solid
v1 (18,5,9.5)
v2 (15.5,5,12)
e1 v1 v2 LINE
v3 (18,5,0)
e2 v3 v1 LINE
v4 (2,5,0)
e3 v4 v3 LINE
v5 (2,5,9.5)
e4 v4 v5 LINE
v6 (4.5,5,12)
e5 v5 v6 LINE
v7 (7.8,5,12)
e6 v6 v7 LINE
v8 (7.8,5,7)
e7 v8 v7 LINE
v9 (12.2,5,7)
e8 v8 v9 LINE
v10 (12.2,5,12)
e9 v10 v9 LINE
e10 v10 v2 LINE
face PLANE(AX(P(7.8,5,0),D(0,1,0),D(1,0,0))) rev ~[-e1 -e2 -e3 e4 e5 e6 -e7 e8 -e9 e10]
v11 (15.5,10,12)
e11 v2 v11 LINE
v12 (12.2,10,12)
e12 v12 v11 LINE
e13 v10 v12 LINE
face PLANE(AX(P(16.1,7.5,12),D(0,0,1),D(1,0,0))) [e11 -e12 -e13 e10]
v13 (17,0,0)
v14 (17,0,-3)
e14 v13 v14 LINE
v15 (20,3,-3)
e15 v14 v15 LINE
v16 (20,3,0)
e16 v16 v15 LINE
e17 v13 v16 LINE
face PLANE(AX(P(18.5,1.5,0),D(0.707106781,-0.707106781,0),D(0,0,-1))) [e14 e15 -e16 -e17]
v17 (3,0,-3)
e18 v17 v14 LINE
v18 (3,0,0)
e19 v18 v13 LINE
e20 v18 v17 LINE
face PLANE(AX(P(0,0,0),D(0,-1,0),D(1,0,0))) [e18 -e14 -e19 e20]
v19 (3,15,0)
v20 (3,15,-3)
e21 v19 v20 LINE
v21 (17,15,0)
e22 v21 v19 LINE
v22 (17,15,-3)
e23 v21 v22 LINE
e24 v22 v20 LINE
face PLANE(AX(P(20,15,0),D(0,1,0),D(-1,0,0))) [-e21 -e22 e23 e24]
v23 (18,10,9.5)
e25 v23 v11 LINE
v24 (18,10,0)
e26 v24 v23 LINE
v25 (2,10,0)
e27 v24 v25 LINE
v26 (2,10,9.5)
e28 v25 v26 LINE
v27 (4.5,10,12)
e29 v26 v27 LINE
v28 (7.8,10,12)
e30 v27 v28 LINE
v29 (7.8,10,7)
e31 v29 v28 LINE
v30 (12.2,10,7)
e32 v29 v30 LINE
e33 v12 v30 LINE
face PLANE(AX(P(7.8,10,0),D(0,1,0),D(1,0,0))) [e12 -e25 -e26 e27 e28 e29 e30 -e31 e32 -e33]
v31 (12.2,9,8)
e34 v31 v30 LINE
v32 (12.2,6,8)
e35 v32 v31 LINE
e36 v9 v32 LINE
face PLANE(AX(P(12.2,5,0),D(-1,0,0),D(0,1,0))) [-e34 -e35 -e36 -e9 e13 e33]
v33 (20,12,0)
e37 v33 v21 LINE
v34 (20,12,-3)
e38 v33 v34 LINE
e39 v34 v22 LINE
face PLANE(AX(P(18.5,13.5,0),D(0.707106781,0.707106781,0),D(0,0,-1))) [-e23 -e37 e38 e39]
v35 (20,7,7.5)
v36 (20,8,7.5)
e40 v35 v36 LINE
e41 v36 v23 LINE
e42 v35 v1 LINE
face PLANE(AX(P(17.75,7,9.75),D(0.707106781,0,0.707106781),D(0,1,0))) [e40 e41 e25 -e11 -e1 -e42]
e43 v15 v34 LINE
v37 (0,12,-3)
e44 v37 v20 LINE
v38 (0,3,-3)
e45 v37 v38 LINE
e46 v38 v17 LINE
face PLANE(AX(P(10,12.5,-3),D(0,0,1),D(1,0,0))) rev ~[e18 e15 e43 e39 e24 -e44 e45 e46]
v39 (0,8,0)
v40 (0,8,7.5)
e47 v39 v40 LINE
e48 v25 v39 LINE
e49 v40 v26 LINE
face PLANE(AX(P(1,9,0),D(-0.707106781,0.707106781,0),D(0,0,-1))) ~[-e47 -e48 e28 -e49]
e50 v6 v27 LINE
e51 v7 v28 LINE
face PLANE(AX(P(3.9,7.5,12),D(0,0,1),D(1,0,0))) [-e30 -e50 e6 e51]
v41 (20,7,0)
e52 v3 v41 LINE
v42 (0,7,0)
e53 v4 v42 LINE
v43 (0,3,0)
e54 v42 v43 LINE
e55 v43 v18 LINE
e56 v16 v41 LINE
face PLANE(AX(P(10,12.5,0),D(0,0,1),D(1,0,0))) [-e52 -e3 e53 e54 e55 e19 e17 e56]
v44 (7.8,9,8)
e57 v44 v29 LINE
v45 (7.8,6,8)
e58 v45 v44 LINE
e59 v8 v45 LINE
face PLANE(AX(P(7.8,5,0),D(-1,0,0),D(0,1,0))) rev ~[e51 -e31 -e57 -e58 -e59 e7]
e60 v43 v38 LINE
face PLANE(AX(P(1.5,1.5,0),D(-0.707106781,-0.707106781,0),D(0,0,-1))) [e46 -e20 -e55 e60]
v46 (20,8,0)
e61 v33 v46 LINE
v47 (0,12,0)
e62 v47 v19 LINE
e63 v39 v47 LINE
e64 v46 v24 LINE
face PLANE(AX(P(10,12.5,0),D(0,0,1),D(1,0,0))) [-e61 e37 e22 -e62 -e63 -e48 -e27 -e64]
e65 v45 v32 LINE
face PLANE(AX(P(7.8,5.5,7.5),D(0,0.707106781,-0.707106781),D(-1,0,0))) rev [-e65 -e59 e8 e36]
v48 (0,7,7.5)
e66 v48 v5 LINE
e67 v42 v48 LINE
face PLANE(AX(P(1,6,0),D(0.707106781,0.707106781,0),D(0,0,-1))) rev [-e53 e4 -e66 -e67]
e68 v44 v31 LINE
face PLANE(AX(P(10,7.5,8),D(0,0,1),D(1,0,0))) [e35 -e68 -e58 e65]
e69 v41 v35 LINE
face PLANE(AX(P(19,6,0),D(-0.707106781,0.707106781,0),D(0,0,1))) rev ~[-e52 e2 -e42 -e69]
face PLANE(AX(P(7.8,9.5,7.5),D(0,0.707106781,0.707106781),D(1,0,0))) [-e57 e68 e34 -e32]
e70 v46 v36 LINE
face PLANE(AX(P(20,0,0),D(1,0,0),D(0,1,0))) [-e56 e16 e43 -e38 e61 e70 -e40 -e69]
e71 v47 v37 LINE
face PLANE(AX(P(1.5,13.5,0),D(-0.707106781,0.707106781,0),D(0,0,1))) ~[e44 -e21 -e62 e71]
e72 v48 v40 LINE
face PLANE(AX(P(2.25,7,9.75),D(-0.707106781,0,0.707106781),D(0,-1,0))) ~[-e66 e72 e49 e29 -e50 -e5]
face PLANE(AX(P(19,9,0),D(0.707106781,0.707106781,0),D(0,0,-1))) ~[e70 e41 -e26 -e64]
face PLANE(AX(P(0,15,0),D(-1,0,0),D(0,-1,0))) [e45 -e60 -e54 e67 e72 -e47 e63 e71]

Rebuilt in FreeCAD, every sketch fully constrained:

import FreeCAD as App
import Part
import Sketcher

V = App.Vector


def edges_at(feature, points):
    """Names of the edges that pass closest to the given points."""
    edges = feature.Shape.Edges
    near = lambda p: min(range(len(edges)), key=lambda i: edges[i].distToShape(Part.Vertex(*p))[0])
    return sorted({f"Edge{near(p) + 1}" for p in points})


def add_polygon(sketch, points):
    """Adds a closed chain of lines whose ends are joined by coincident constraints."""
    first, n = sketch.GeometryCount, len(points)
    for a, b in zip(points, points[1:] + points[:1]):
        sketch.addGeometry(Part.LineSegment(App.Vector(*a, 0), App.Vector(*b, 0)), False)
    for i in range(n):
        sketch.addConstraint(Sketcher.Constraint("Coincident", first + i, 2, first + (i + 1) % n, 1))

doc = App.newDocument("Part")
body = doc.addObject("PartDesign::Body", "Body")

sketch1 = doc.addObject("Sketcher::SketchObject", "Sketch")
body.addObject(sketch1)
sketch1.AttachmentSupport = (doc.XY_Plane, [""])
sketch1.MapMode = "FlatFace"
add_polygon(sketch1, [(0, 15), (0, 0), (20, 0), (20, 15)])
sketch1.addConstraint([
    Sketcher.Constraint("Vertical", 0),
    Sketcher.Constraint("Horizontal", 1),
    Sketcher.Constraint("Vertical", 2),
    Sketcher.Constraint("Horizontal", 3),
    Sketcher.Constraint("Coincident", 0, 2, -1, 1),
    Sketcher.Constraint("DistanceX", 1, 1, 1, 2, 20.0),
    Sketcher.Constraint("DistanceY", 0, 2, 0, 1, 15.0),
])
pad1 = doc.addObject("PartDesign::Pad", "Pad")
body.addObject(pad1)
pad1.Profile = sketch1
pad1.Length = 3
pad1.Reversed = True

sketch2 = doc.addObject("Sketcher::SketchObject", "Sketch001")
body.addObject(sketch2)
sketch2.AttachmentSupport = (doc.XY_Plane, [""])
sketch2.MapMode = "FlatFace"
add_polygon(sketch2, [(0, 10), (0, 5), (8, 5), (8, 10)])
add_polygon(sketch2, [(12, 10), (12, 5), (20, 5), (20, 10)])
sketch2.addConstraint([
    Sketcher.Constraint("Vertical", 0),
    Sketcher.Constraint("Horizontal", 1),
    Sketcher.Constraint("Vertical", 2),
    Sketcher.Constraint("Horizontal", 3),
    Sketcher.Constraint("Vertical", 4),
    Sketcher.Constraint("Horizontal", 5),
    Sketcher.Constraint("Vertical", 6),
    Sketcher.Constraint("Horizontal", 7),
    Sketcher.Constraint("PointOnObject", 0, 2, -2),
    Sketcher.Constraint("Horizontal", 1, 2, 4, 2),
    Sketcher.Constraint("Horizontal", 3, 2, 6, 2),
    Sketcher.Constraint("Equal", 3, 5),
    Sketcher.Constraint("DistanceY", 0, 2, 0, 1, 5.0),
    Sketcher.Constraint("DistanceX", 1, 1, 1, 2, 7.8),
    Sketcher.Constraint("DistanceY", -1, 1, 0, 2, 5.0),
    Sketcher.Constraint("DistanceX", -1, 1, 5, 2, 20.0),
])
pad2 = doc.addObject("PartDesign::Pad", "Pad001")
body.addObject(pad2)
pad2.Profile = sketch2
pad2.Length = 12

sketch3 = doc.addObject("Sketcher::SketchObject", "Sketch002")
body.addObject(sketch3)
sketch3.AttachmentSupport = (doc.XY_Plane, [""])
sketch3.MapMode = "FlatFace"
add_polygon(sketch3, [(7.8, 10), (7.8, 5), (12.2, 5), (12.2, 10)])
sketch3.addConstraint([
    Sketcher.Constraint("Vertical", 0),
    Sketcher.Constraint("Horizontal", 1),
    Sketcher.Constraint("Vertical", 2),
    Sketcher.Constraint("Horizontal", 3),
    Sketcher.Constraint("DistanceY", 0, 2, 0, 1, 5.0),
    Sketcher.Constraint("DistanceX", 1, 1, 1, 2, 4.4),
    Sketcher.Constraint("DistanceY", -1, 1, 0, 2, 5.0),
    Sketcher.Constraint("DistanceX", -1, 1, 0, 2, 7.8),
])
pad3 = doc.addObject("PartDesign::Pad", "Pad002")
body.addObject(pad3)
pad3.Profile = sketch3
pad3.Length = 8
doc.recompute()

chamfer = doc.addObject("PartDesign::Chamfer", "Chamfer")
body.addObject(chamfer)
chamfer.Base = (pad3, edges_at(pad3, [
    (0, 10, 6),
    (0, 5, 6),
    (20, 5, 6),
    (20, 10, 6),
]))
chamfer.Size = 2
doc.recompute()

chamfer2 = doc.addObject("PartDesign::Chamfer", "Chamfer001")
body.addObject(chamfer2)
chamfer2.Base = (chamfer, edges_at(chamfer, [(0, 7.5, 12), (20, 7.5, 12)]))
chamfer2.Size = 4.5
doc.recompute()

chamfer3 = doc.addObject("PartDesign::Chamfer", "Chamfer002")
body.addObject(chamfer3)
chamfer3.Base = (chamfer2, edges_at(chamfer2, [
    (0, 15, -1.5),
    (0, 0, -1.5),
    (20, 0, -1.5),
    (20, 15, -1.5),
]))
chamfer3.Size = 3
doc.recompute()

chamfer4 = doc.addObject("PartDesign::Chamfer", "Chamfer003")
body.addObject(chamfer4)
chamfer4.Base = (chamfer3, edges_at(chamfer3, [(10, 5, 8), (10, 10, 8)]))
chamfer4.Size = 1

doc.recompute()
